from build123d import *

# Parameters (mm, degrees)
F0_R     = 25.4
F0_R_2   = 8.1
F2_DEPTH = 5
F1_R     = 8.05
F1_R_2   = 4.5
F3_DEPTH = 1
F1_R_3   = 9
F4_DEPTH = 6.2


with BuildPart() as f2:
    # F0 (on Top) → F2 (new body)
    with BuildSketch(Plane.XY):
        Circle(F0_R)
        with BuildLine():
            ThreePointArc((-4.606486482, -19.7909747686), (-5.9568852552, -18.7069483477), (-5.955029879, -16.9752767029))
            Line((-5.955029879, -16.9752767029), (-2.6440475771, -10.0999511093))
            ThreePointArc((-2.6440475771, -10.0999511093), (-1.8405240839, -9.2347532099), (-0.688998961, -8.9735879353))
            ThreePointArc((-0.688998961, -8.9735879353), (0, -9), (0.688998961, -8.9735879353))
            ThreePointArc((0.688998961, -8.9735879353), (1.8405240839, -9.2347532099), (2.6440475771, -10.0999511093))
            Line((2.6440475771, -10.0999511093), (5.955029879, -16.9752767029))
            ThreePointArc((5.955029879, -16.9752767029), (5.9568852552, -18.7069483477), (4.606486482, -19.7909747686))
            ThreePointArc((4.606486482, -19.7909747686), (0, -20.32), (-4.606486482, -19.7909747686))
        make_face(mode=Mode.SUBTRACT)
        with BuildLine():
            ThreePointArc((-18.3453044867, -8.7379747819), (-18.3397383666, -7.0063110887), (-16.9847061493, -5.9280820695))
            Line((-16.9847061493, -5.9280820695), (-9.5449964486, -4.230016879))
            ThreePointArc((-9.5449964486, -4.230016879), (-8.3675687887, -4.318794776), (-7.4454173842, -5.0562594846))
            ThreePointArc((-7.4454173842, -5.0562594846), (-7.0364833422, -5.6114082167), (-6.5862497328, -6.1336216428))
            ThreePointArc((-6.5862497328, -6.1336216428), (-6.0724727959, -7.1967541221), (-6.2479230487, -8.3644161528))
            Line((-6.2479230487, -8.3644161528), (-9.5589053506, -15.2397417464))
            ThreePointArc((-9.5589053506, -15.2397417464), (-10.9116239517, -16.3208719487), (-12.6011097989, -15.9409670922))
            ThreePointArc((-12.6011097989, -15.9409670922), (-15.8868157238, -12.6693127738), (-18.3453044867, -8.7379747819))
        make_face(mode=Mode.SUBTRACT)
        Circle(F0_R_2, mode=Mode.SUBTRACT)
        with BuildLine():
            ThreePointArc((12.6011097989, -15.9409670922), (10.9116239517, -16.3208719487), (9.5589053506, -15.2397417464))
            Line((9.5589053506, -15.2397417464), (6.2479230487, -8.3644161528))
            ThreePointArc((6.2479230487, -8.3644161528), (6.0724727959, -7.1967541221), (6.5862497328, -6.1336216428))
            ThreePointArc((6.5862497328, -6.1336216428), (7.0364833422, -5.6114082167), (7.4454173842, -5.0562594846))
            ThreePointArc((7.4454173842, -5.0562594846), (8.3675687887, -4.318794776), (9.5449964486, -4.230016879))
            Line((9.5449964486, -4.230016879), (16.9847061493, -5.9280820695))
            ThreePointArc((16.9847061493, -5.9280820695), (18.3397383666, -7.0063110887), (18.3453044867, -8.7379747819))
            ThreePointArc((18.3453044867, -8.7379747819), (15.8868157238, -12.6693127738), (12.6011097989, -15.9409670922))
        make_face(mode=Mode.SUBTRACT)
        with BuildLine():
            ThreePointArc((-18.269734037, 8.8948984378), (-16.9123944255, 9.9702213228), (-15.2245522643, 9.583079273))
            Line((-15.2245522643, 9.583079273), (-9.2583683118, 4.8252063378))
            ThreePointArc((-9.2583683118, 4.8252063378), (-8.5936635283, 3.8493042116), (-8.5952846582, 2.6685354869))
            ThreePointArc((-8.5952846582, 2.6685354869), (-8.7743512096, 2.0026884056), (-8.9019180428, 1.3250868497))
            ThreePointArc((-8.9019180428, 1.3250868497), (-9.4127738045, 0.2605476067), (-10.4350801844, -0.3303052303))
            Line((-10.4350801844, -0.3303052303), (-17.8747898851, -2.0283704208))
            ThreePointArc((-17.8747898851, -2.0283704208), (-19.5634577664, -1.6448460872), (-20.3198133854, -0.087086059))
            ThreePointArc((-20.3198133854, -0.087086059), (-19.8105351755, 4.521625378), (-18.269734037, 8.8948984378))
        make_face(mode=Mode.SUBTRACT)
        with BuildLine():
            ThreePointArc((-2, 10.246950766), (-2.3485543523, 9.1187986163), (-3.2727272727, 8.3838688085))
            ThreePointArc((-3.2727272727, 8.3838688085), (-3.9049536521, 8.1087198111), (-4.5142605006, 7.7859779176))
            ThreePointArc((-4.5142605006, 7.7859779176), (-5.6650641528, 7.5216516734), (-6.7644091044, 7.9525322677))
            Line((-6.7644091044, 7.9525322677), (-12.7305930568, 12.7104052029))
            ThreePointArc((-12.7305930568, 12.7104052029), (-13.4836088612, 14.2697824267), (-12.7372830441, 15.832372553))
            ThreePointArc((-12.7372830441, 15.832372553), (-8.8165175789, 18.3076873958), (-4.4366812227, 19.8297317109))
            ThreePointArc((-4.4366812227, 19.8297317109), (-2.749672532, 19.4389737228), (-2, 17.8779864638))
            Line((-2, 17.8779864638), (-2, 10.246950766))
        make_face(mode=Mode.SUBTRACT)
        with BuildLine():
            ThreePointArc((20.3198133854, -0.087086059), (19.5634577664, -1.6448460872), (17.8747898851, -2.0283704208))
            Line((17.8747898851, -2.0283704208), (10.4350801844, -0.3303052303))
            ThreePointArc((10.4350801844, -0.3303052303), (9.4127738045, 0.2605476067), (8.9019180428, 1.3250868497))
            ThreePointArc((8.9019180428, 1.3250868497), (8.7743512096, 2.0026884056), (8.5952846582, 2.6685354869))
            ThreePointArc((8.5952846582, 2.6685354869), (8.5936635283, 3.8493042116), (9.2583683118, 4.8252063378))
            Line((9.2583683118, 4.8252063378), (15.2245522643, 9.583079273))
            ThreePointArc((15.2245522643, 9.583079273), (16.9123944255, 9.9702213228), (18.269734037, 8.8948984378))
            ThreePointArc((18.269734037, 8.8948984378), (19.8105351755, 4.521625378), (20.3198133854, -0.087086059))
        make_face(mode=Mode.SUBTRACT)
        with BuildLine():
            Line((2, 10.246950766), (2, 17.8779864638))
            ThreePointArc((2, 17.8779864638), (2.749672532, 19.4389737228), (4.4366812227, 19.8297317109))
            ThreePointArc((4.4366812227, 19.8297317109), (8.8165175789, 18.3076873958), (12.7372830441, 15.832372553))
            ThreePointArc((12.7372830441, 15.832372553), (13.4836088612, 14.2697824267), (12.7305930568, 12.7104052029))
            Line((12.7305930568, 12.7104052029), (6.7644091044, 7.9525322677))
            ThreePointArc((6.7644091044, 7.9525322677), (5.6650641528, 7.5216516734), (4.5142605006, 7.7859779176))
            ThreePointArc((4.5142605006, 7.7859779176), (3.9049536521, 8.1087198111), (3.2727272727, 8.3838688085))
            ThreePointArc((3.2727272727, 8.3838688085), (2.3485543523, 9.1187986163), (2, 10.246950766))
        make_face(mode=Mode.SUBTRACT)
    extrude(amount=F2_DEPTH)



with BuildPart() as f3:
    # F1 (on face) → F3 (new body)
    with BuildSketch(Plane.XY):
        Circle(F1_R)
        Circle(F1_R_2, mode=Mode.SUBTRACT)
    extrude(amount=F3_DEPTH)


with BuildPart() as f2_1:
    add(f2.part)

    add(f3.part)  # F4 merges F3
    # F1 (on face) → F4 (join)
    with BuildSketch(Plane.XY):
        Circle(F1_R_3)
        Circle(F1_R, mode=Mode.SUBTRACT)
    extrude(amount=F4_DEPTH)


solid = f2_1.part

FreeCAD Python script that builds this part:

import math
import FreeCAD as App
import Part
import Sketcher

doc = App.newDocument("Part")
body = doc.addObject("PartDesign::Body", "Body")

# Sketch on XY plane
sketch1 = body.newObject("Sketcher::SketchObject", "Sketch")
sketch1.AttachmentSupport = (doc.getObject("XY_Plane"), [""])
sketch1.MapMode = "FlatFace"
sketch1.addGeometry(Part.Circle(App.Vector(0, 0, 0), App.Vector(0, 0, 1), 25.4), False)
sketch1.addGeometry(Part.ArcOfCircle(Part.Circle(App.Vector(0, 0, 0), App.Vector(0, 0, 1), 20.32), math.radians(-154.531269), math.radians(-128.325874)), False)
sketch1.addGeometry(Part.ArcOfCircle(Part.Circle(App.Vector(-16.539664, -7.877938, 0), App.Vector(0, 0, 1), 2), math.radians(102.857143), math.radians(205.468731)), False)
sketch1.addGeometry(Part.LineSegment(App.Vector(-16.984706, -5.928082, 0), App.Vector(-9.544996, -4.230017, 0)), False)
sketch1.addGeometry(Part.ArcOfCircle(Part.Circle(App.Vector(-9.099955, -6.179873, 0), App.Vector(0, 0, 1), 2), math.radians(34.180829), math.radians(102.857143)), False)
sketch1.addGeometry(Part.ArcOfCircle(Part.Circle(App.Vector(0, 0, 0), App.Vector(0, 0, 1), 9), math.radians(-145.819171), math.radians(-137.037972)), False)
sketch1.addGeometry(Part.ArcOfCircle(Part.Circle(App.Vector(-8.049861, -7.496649, 0), App.Vector(0, 0, 1), 2), math.radians(-25.714286), math.radians(42.962028)), False)
sketch1.addGeometry(Part.LineSegment(App.Vector(-6.247923, -8.364416, 0), App.Vector(-9.558905, -15.239742, 0)), False)
sketch1.addGeometry(Part.ArcOfCircle(Part.Circle(App.Vector(-11.360843, -14.371974, 0), App.Vector(0, 0, 1), 2), math.radians(-128.325874), math.radians(-25.714286)), False)
sketch1.addGeometry(Part.ArcOfCircle(Part.Circle(App.Vector(0, 0, 0), App.Vector(0, 0, 1), 20.32), math.radians(-103.102698), math.radians(-76.897302)), False)
sketch1.addGeometry(Part.ArcOfCircle(Part.Circle(App.Vector(-4.153092, -17.843044, 0), App.Vector(0, 0, 1), 2), math.radians(154.285714), math.radians(256.897302)), False)
sketch1.addGeometry(Part.LineSegment(App.Vector(-5.95503, -16.975277, 0), App.Vector(-2.644048, -10.099951, 0)), False)
sketch1.addGeometry(Part.ArcOfCircle(Part.Circle(App.Vector(-0.84211, -10.967719, 0), App.Vector(0, 0, 1), 2), math.radians(85.609401), math.radians(154.285714)), False)
sketch1.addGeometry(Part.ArcOfCircle(Part.Circle(App.Vector(0, 0, 0), App.Vector(0, 0, 1), 9), math.radians(-94.390599), math.radians(-85.609401)), False)
sketch1.addGeometry(Part.ArcOfCircle(Part.Circle(App.Vector(0.84211, -10.967719, 0), App.Vector(0, 0, 1), 2), math.radians(25.714286), math.radians(94.390599)), False)
sketch1.addGeometry(Part.LineSegment(App.Vector(2.644048, -10.099951, 0), App.Vector(5.95503, -16.975277, 0)), False)
sketch1.addGeometry(Part.ArcOfCircle(Part.Circle(App.Vector(4.153092, -17.843044, 0), App.Vector(0, 0, 1), 2), math.radians(-76.897302), math.radians(25.714286)), False)
sketch1.addGeometry(Part.ArcOfCircle(Part.Circle(App.Vector(0, 0, 0), App.Vector(0, 0, 1), 20.32), math.radians(-51.674126), math.radians(-25.468731)), False)
sketch1.addGeometry(Part.ArcOfCircle(Part.Circle(App.Vector(11.360843, -14.371974, 0), App.Vector(0, 0, 1), 2), math.radians(-154.285714), math.radians(-51.674126)), False)
sketch1.addGeometry(Part.LineSegment(App.Vector(9.558905, -15.239742, 0), App.Vector(6.247923, -8.364416, 0)), False)
sketch1.addGeometry(Part.ArcOfCircle(Part.Circle(App.Vector(8.049861, -7.496649, 0), App.Vector(0, 0, 1), 2), math.radians(137.037972), math.radians(205.714286)), False)
sketch1.addGeometry(Part.ArcOfCircle(Part.Circle(App.Vector(0, 0, 0), App.Vector(0, 0, 1), 9), math.radians(-42.962028), math.radians(-34.180829)), False)
sketch1.addGeometry(Part.ArcOfCircle(Part.Circle(App.Vector(9.099955, -6.179873, 0), App.Vector(0, 0, 1), 2), math.radians(77.142857), math.radians(145.819171)), False)
sketch1.addGeometry(Part.LineSegment(App.Vector(9.544996, -4.230017, 0), App.Vector(16.984706, -5.928082, 0)), False)
sketch1.addGeometry(Part.ArcOfCircle(Part.Circle(App.Vector(16.539664, -7.877938, 0), App.Vector(0, 0, 1), 2), math.radians(-25.468731), math.radians(77.142857)), False)
sketch1.addGeometry(Part.ArcOfCircle(Part.Circle(App.Vector(0, 0, 0), App.Vector(0, 0, 1), 20.32), math.radians(154.040159), math.radians(180.245555)), False)
sketch1.addGeometry(Part.ArcOfCircle(Part.Circle(App.Vector(-16.471532, 8.019416, 0), App.Vector(0, 0, 1), 2), math.radians(51.428571), math.radians(154.040159)), False)
sketch1.addGeometry(Part.LineSegment(App.Vector(-15.224552, 9.583079, 0), App.Vector(-9.258368, 4.825206, 0)), False)
sketch1.addGeometry(Part.ArcOfCircle(Part.Circle(App.Vector(-10.505348, 3.261543, 0), App.Vector(0, 0, 1), 2), math.radians(-17.247742), math.radians(51.428571)), False)
sketch1.addGeometry(Part.ArcOfCircle(Part.Circle(App.Vector(0, 0, 0), App.Vector(0, 0, 1), 9), math.radians(162.752258), math.radians(171.533457)), False)
sketch1.addGeometry(Part.ArcOfCircle(Part.Circle(App.Vector(-10.880122, 1.619551, 0), App.Vector(0, 0, 1), 2), math.radians(-77.142857), math.radians(-8.466543)), False)
sketch1.addGeometry(Part.LineSegment(App.Vector(-10.43508, -0.330305, 0), App.Vector(-17.87479, -2.02837, 0)), False)
sketch1.addGeometry(Part.ArcOfCircle(Part.Circle(App.Vector(-18.319832, -0.078515, 0), App.Vector(0, 0, 1), 2), math.radians(-179.754445), math.radians(-77.142857)), False)
sketch1.addGeometry(Part.LineSegment(App.Vector(-2, 17.877986, 0), App.Vector(-2, 10.246951, 0)), False)
sketch1.addGeometry(Part.ArcOfCircle(Part.Circle(App.Vector(-4, 10.246951, 0), App.Vector(0, 0, 1), 2), math.radians(-68.676314), math.radians(0)), False)
sketch1.addGeometry(Part.ArcOfCircle(Part.Circle(App.Vector(0, 0, 0), App.Vector(0, 0, 1), 9), math.radians(111.323686), math.radians(120.104885)), False)
sketch1.addGeometry(Part.ArcOfCircle(Part.Circle(App.Vector(-5.51743, 9.516195, 0), App.Vector(0, 0, 1), 2), math.radians(-128.571429), math.radians(-59.895115)), False)
sketch1.addGeometry(Part.LineSegment(App.Vector(-6.764409, 7.952532, 0), App.Vector(-12.730593, 12.710405, 0)), False)
sketch1.addGeometry(Part.ArcOfCircle(Part.Circle(App.Vector(-11.483613, 14.274068, 0), App.Vector(0, 0, 1), 2), math.radians(128.816984), math.radians(231.428571)), False)
sketch1.addGeometry(Part.ArcOfCircle(Part.Circle(App.Vector(0, 0, 0), App.Vector(0, 0, 1), 20.32), math.radians(102.611588), math.radians(128.816984)), False)
sketch1.addGeometry(Part.ArcOfCircle(Part.Circle(App.Vector(-4, 17.877986, 0), App.Vector(0, 0, 1), 2), math.radians(0), math.radians(102.611588)), False)
sketch1.addGeometry(Part.Circle(App.Vector(0, 0, 0), App.Vector(0, 0, 1), 8.1), False)
sketch1.addGeometry(Part.ArcOfCircle(Part.Circle(App.Vector(0, 0, 0), App.Vector(0, 0, 1), 20.32), math.radians(-0.245555), math.radians(25.959841)), False)
sketch1.addGeometry(Part.ArcOfCircle(Part.Circle(App.Vector(18.319832, -0.078515, 0), App.Vector(0, 0, 1), 2), math.radians(-102.857143), math.radians(-0.245555)), False)
sketch1.addGeometry(Part.LineSegment(App.Vector(17.87479, -2.02837, 0), App.Vector(10.43508, -0.330305, 0)), False)
sketch1.addGeometry(Part.ArcOfCircle(Part.Circle(App.Vector(10.880122, 1.619551, 0), App.Vector(0, 0, 1), 2), math.radians(-171.533457), math.radians(-102.857143)), False)
sketch1.addGeometry(Part.ArcOfCircle(Part.Circle(App.Vector(0, 0, 0), App.Vector(0, 0, 1), 9), math.radians(8.466543), math.radians(17.247742)), False)
sketch1.addGeometry(Part.ArcOfCircle(Part.Circle(App.Vector(10.505348, 3.261543, 0), App.Vector(0, 0, 1), 2), math.radians(128.571429), math.radians(197.247742)), False)
sketch1.addGeometry(Part.LineSegment(App.Vector(9.258368, 4.825206, 0), App.Vector(15.224552, 9.583079, 0)), False)
sketch1.addGeometry(Part.ArcOfCircle(Part.Circle(App.Vector(16.471532, 8.019416, 0), App.Vector(0, 0, 1), 2), math.radians(25.959841), math.radians(128.571429)), False)
sketch1.addGeometry(Part.ArcOfCircle(Part.Circle(App.Vector(4, 10.246951, 0), App.Vector(0, 0, 1), 2), math.radians(180), math.radians(248.676314)), False)
sketch1.addGeometry(Part.LineSegment(App.Vector(2, 10.246951, 0), App.Vector(2, 17.877986, 0)), False)
sketch1.addGeometry(Part.ArcOfCircle(Part.Circle(App.Vector(4, 17.877986, 0), App.Vector(0, 0, 1), 2), math.radians(77.388412), math.radians(180)), False)
sketch1.addGeometry(Part.ArcOfCircle(Part.Circle(App.Vector(0, 0, 0), App.Vector(0, 0, 1), 20.32), math.radians(51.183016), math.radians(77.388412)), False)
sketch1.addGeometry(Part.ArcOfCircle(Part.Circle(App.Vector(11.483613, 14.274068, 0), App.Vector(0, 0, 1), 2), math.radians(-51.428571), math.radians(51.183016)), False)
sketch1.addGeometry(Part.LineSegment(App.Vector(12.730593, 12.710405, 0), App.Vector(6.764409, 7.952532, 0)), False)
sketch1.addGeometry(Part.ArcOfCircle(Part.Circle(App.Vector(5.51743, 9.516195, 0), App.Vector(0, 0, 1), 2), math.radians(-120.104885), math.radians(-51.428571)), False)
sketch1.addGeometry(Part.ArcOfCircle(Part.Circle(App.Vector(0, 0, 0), App.Vector(0, 0, 1), 9), math.radians(59.895115), math.radians(68.676314)), False)
sketch1.addConstraint(Sketcher.Constraint("Tangent", 1, 1, 2, 2))
sketch1.addConstraint(Sketcher.Constraint("Tangent", 2, 1, 3, 1))
sketch1.addConstraint(Sketcher.Constraint("Tangent", 3, 2, 4, 2))
sketch1.addConstraint(Sketcher.Constraint("Tangent", 4, 1, 5, 1))
sketch1.addConstraint(Sketcher.Constraint("Tangent", 5, 2, 6, 2))
sketch1.addConstraint(Sketcher.Constraint("Tangent", 6, 1, 7, 1))
sketch1.addConstraint(Sketcher.Constraint("Tangent", 7, 2, 8, 2))
sketch1.addConstraint(Sketcher.Constraint("Tangent", 8, 1, 1, 2))
sketch1.addConstraint(Sketcher.Constraint("Tangent", 9, 1, 10, 2))
sketch1.addConstraint(Sketcher.Constraint("Tangent", 10, 1, 11, 1))
sketch1.addConstraint(Sketcher.Constraint("Tangent", 11, 2, 12, 2))
sketch1.addConstraint(Sketcher.Constraint("Tangent", 12, 1, 13, 1))
sketch1.addConstraint(Sketcher.Constraint("Tangent", 13, 2, 14, 2))
sketch1.addConstraint(Sketcher.Constraint("Tangent", 14, 1, 15, 1))
sketch1.addConstraint(Sketcher.Constraint("Tangent", 15, 2, 16, 2))
sketch1.addConstraint(Sketcher.Constraint("Tangent", 16, 1, 9, 2))
sketch1.addConstraint(Sketcher.Constraint("Tangent", 17, 1, 18, 2))
sketch1.addConstraint(Sketcher.Constraint("Tangent", 18, 1, 19, 1))
sketch1.addConstraint(Sketcher.Constraint("Tangent", 19, 2, 20, 2))
sketch1.addConstraint(Sketcher.Constraint("Tangent", 20, 1, 21, 1))
sketch1.addConstraint(Sketcher.Constraint("Tangent", 21, 2, 22, 2))
sketch1.addConstraint(Sketcher.Constraint("Tangent", 22, 1, 23, 1))
sketch1.addConstraint(Sketcher.Constraint("Tangent", 23, 2, 24, 2))
sketch1.addConstraint(Sketcher.Constraint("Tangent", 24, 1, 17, 2))
sketch1.addConstraint(Sketcher.Constraint("Tangent", 25, 1, 26, 2))
sketch1.addConstraint(Sketcher.Constraint("Tangent", 26, 1, 27, 1))
sketch1.addConstraint(Sketcher.Constraint("Tangent", 27, 2, 28, 2))
sketch1.addConstraint(Sketcher.Constraint("Tangent", 28, 1, 29, 1))
sketch1.addConstraint(Sketcher.Constraint("Tangent", 29, 2, 30, 2))
sketch1.addConstraint(Sketcher.Constraint("Tangent", 30, 1, 31, 1))
sketch1.addConstraint(Sketcher.Constraint("Tangent", 31, 2, 32, 2))
sketch1.addConstraint(Sketcher.Constraint("Tangent", 32, 1, 25, 2))
sketch1.addConstraint(Sketcher.Constraint("Tangent", 33, 2, 34, 2))
sketch1.addConstraint(Sketcher.Constraint("Tangent", 34, 1, 35, 1))
sketch1.addConstraint(Sketcher.Constraint("Tangent", 35, 2, 36, 2))
sketch1.addConstraint(Sketcher.Constraint("Tangent", 36, 1, 37, 1))
sketch1.addConstraint(Sketcher.Constraint("Tangent", 37, 2, 38, 2))
sketch1.addConstraint(Sketcher.Constraint("Tangent", 38, 1, 39, 2))
sketch1.addConstraint(Sketcher.Constraint("Tangent", 39, 1, 40, 2))
sketch1.addConstraint(Sketcher.Constraint("Tangent", 40, 1, 33, 1))
sketch1.addConstraint(Sketcher.Constraint("Tangent", 42, 1, 43, 2))
sketch1.addConstraint(Sketcher.Constraint("Tangent", 43, 1, 44, 1))
sketch1.addConstraint(Sketcher.Constraint("Tangent", 44, 2, 45, 2))
sketch1.addConstraint(Sketcher.Constraint("Tangent", 45, 1, 46, 1))
sketch1.addConstraint(Sketcher.Constraint("Tangent", 46, 2, 47, 2))
sketch1.addConstraint(Sketcher.Constraint("Tangent", 47, 1, 48, 1))
sketch1.addConstraint(Sketcher.Constraint("Tangent", 48, 2, 49, 2))
sketch1.addConstraint(Sketcher.Constraint("Tangent", 49, 1, 42, 2))
sketch1.addConstraint(Sketcher.Constraint("Tangent", 50, 1, 51, 1))
sketch1.addConstraint(Sketcher.Constraint("Tangent", 51, 2, 52, 2))
sketch1.addConstraint(Sketcher.Constraint("Tangent", 52, 1, 53, 2))
sketch1.addConstraint(Sketcher.Constraint("Tangent", 53, 1, 54, 2))
sketch1.addConstraint(Sketcher.Constraint("Tangent", 54, 1, 55, 1))
sketch1.addConstraint(Sketcher.Constraint("Tangent", 55, 2, 56, 2))
sketch1.addConstraint(Sketcher.Constraint("Tangent", 56, 1, 57, 1))
sketch1.addConstraint(Sketcher.Constraint("Tangent", 57, 2, 50, 2))
sketch1.addConstraint(Sketcher.Constraint("Vertical", 33))
sketch1.addConstraint(Sketcher.Constraint("Vertical", 51))
sketch1.addConstraint(Sketcher.Constraint("Coincident", 0, 3, -1, 1))
sketch1.addConstraint(Sketcher.Constraint("Coincident", 1, 3, -1, 1))
sketch1.addConstraint(Sketcher.Constraint("Coincident", 5, 3, -1, 1))
sketch1.addConstraint(Sketcher.Constraint("Coincident", 9, 3, -1, 1))
sketch1.addConstraint(Sketcher.Constraint("Coincident", 13, 3, -1, 1))
sketch1.addConstraint(Sketcher.Constraint("Coincident", 17, 3, -1, 1))
sketch1.addConstraint(Sketcher.Constraint("Coincident", 21, 3, -1, 1))
sketch1.addConstraint(Sketcher.Constraint("Coincident", 25, 3, -1, 1))
sketch1.addConstraint(Sketcher.Constraint("Coincident", 29, 3, -1, 1))
sketch1.addConstraint(Sketcher.Constraint("Coincident", 35, 3, -1, 1))
sketch1.addConstraint(Sketcher.Constraint("Coincident", 39, 3, -1, 1))
sketch1.addConstraint(Sketcher.Constraint("Coincident", 41, 3, -1, 1))
sketch1.addConstraint(Sketcher.Constraint("Coincident", 42, 3, -1, 1))
sketch1.addConstraint(Sketcher.Constraint("Coincident", 46, 3, -1, 1))
sketch1.addConstraint(Sketcher.Constraint("Coincident", 53, 3, -1, 1))
sketch1.addConstraint(Sketcher.Constraint("Coincident", 57, 3, -1, 1))
sketch1.addConstraint(Sketcher.Constraint("Equal", 2, 4))
sketch1.addConstraint(Sketcher.Constraint("Equal", 4, 6))
sketch1.addConstraint(Sketcher.Constraint("Equal", 6, 8))
sketch1.addConstraint(Sketcher.Constraint("Equal", 1, 9))
sketch1.addConstraint(Sketcher.Constraint("Equal", 8, 10))
sketch1.addConstraint(Sketcher.Constraint("Equal", 10, 12))
sketch1.addConstraint(Sketcher.Constraint("Equal", 5, 13))
sketch1.addConstraint(Sketcher.Constraint("Equal", 12, 14))
sketch1.addConstraint(Sketcher.Constraint("Equal", 14, 16))
sketch1.addConstraint(Sketcher.Constraint("Equal", 9, 17))
sketch1.addConstraint(Sketcher.Constraint("Equal", 16, 18))
sketch1.addConstraint(Sketcher.Constraint("Equal", 18, 20))
sketch1.addConstraint(Sketcher.Constraint("Equal", 13, 21))
sketch1.addConstraint(Sketcher.Constraint("Equal", 20, 22))
sketch1.addConstraint(Sketcher.Constraint("Equal", 22, 24))
sketch1.addConstraint(Sketcher.Constraint("Equal", 17, 25))
sketch1.addConstraint(Sketcher.Constraint("Equal", 24, 26))
sketch1.addConstraint(Sketcher.Constraint("Equal", 26, 28))
sketch1.addConstraint(Sketcher.Constraint("Equal", 21, 29))
sketch1.addConstraint(Sketcher.Constraint("Equal", 28, 30))
sketch1.addConstraint(Sketcher.Constraint("Equal", 30, 32))
sketch1.addConstraint(Sketcher.Constraint("Equal", 32, 34))
sketch1.addConstraint(Sketcher.Constraint("Equal", 29, 35))
sketch1.addConstraint(Sketcher.Constraint("Equal", 34, 36))
sketch1.addConstraint(Sketcher.Constraint("Equal", 36, 38))
sketch1.addConstraint(Sketcher.Constraint("Equal", 25, 39))
sketch1.addConstraint(Sketcher.Constraint("Equal", 38, 40))
sketch1.addConstraint(Sketcher.Constraint("Equal", 39, 42))
sketch1.addConstraint(Sketcher.Constraint("Equal", 40, 43))
sketch1.addConstraint(Sketcher.Constraint("Equal", 43, 45))
sketch1.addConstraint(Sketcher.Constraint("Equal", 35, 46))
sketch1.addConstraint(Sketcher.Constraint("Equal", 45, 47))
sketch1.addConstraint(Sketcher.Constraint("Equal", 47, 49))
sketch1.addConstraint(Sketcher.Constraint("Equal", 49, 50))
sketch1.addConstraint(Sketcher.Constraint("Equal", 50, 52))
sketch1.addConstraint(Sketcher.Constraint("Equal", 42, 53))
sketch1.addConstraint(Sketcher.Constraint("Equal", 52, 54))
sketch1.addConstraint(Sketcher.Constraint("Equal", 54, 56))
sketch1.addConstraint(Sketcher.Constraint("Equal", 46, 57))
sketch1.addConstraint(Sketcher.Constraint("Symmetric", 11, 2, 14, 1, -2))
sketch1.addConstraint(Sketcher.Constraint("Symmetric", 7, 2, 18, 1, -2))
sketch1.addConstraint(Sketcher.Constraint("Symmetric", 3, 2, 22, 1, -2))
sketch1.addConstraint(Sketcher.Constraint("Symmetric", 31, 2, 43, 1, -2))
sketch1.addConstraint(Sketcher.Constraint("Symmetric", 27, 2, 47, 1, -2))
sketch1.addConstraint(Sketcher.Constraint("Symmetric", 37, 2, 54, 1, -2))
sketch1.addConstraint(Sketcher.Constraint("Parallel", 7, 11))
sketch1.addConstraint(Sketcher.Constraint("Parallel", 3, 31))
sketch1.addConstraint(Sketcher.Constraint("Parallel", 27, 37))
sketch1.addConstraint(Sketcher.Constraint("Horizontal", 34, 3, 50, 3))
sketch1.addConstraint(Sketcher.Constraint("Equal", 3, 7))
sketch1.addConstraint(Sketcher.Constraint("Equal", 7, 11))
sketch1.addConstraint(Sketcher.Constraint("Equal", 23, 27))
sketch1.addConstraint(Sketcher.Constraint("Equal", 27, 31))
sketch1.addConstraint(Sketcher.Constraint("Equal", 31, 37))
sketch1.addConstraint(Sketcher.Constraint("Radius", 2, 2.0))
sketch1.addConstraint(Sketcher.Constraint("Radius", 5, 9.0))
sketch1.addConstraint(Sketcher.Constraint("Diameter", 0, 50.8))
sketch1.addConstraint(Sketcher.Constraint("Diameter", 41, 16.2))
sketch1.addConstraint(Sketcher.Constraint("Radius", 1, 20.32))
sketch1.addConstraint(Sketcher.Constraint("DistanceX", 34, 3, -1, 1, 4.0))
sketch1.addConstraint(Sketcher.Constraint("DistanceX", 12, 1, -1, 1, 0.688999))
sketch1.addConstraint(Sketcher.Constraint("DistanceY", -1, 1, 25, 1, 8.894898))
sketch1.addConstraint(Sketcher.Constraint("DistanceX", 6, 3, -1, 1, 8.049861))
sketch1.addConstraint(Sketcher.Constraint("DistanceY", -1, 1, 30, 3, 1.619551))
pad1 = body.newObject("PartDesign::Pad", "Pad")
pad1.Profile = sketch1
pad1.Length = 5
body2 = doc.addObject("PartDesign::Body", "Body001")

# Sketch on XY plane
sketch2 = body2.newObject("Sketcher::SketchObject", "Sketch001")
sketch2.AttachmentSupport = (doc.getObject("XY_Plane001"), [""])
sketch2.MapMode = "FlatFace"
sketch2.addGeometry(Part.Circle(App.Vector(0, 0, 0), App.Vector(0, 0, 1), 8.05), False)
sketch2.addGeometry(Part.Circle(App.Vector(0, 0, 0), App.Vector(0, 0, 1), 4.5), False)
sketch2.addConstraint(Sketcher.Constraint("Coincident", 0, 3, -1, 1))
sketch2.addConstraint(Sketcher.Constraint("Coincident", 1, 3, -1, 1))
sketch2.addConstraint(Sketcher.Constraint("Diameter", 1, 9.0))
sketch2.addConstraint(Sketcher.Constraint("Diameter", 0, 16.1))
pad2 = body2.newObject("PartDesign::Pad", "Pad001")
pad2.Profile = sketch2
pad2.Length = 1
body.AllowCompound = True
doc.recompute()

boolean = body.newObject("PartDesign::Boolean", "Boolean")
boolean.Type = "Fuse"
boolean.addObjects([body2])

# Sketch on XY plane
sketch3 = body.newObject("Sketcher::SketchObject", "Sketch002")
sketch3.AttachmentSupport = (doc.getObject("XY_Plane"), [""])
sketch3.MapMode = "FlatFace"
sketch3.addGeometry(Part.Circle(App.Vector(0, 0, 0), App.Vector(0, 0, 1), 9), False)
sketch3.addGeometry(Part.Circle(App.Vector(0, 0, 0), App.Vector(0, 0, 1), 8.05), False)
sketch3.addConstraint(Sketcher.Constraint("Coincident", 0, 3, -1, 1))
sketch3.addConstraint(Sketcher.Constraint("Coincident", 1, 3, -1, 1))
sketch3.addConstraint(Sketcher.Constraint("Diameter", 0, 18.0))
sketch3.addConstraint(Sketcher.Constraint("Diameter", 1, 16.1))
pad3 = body.newObject("PartDesign::Pad", "Pad002")
pad3.Profile = sketch3
pad3.Length = 6.2

doc.recompute()
